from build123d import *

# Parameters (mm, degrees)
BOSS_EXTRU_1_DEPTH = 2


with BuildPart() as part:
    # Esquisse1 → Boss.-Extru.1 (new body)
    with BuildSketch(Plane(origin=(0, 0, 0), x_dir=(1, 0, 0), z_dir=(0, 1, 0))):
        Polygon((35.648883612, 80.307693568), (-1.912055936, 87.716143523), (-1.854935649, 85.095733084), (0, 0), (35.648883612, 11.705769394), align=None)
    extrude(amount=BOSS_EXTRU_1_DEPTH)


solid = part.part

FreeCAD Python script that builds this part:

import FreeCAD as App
import Part
import Sketcher
Q = App.Units.Quantity


def add_polygon(sketch, points):
    """Adds a closed chain of lines whose ends are joined by coincident constraints."""
    first, n = sketch.GeometryCount, len(points)
    for a, b in zip(points, points[1:] + points[:1]):
        sketch.addGeometry(Part.LineSegment(App.Vector(*a, 0), App.Vector(*b, 0)), False)
    for i in range(n):
        sketch.addConstraint(Sketcher.Constraint("Coincident", first + i, 2, first + (i + 1) % n, 1))

doc = App.newDocument("Part")
body = doc.addObject("PartDesign::Body", "Body")

sketch1 = body.newObject("Sketcher::SketchObject", "Sketch")
sketch1.AttachmentSupport = (doc.getObject("XZ_Plane"), [""])
sketch1.MapMode = "FlatFace"
add_polygon(sketch1, [(35.6, -80.3), (-1.9, -87.7), (-1.9, -85.1), (0, 0), (35.6, -11.7)])
sketch1.addConstraint(Sketcher.Constraint("Vertical", 4))
sketch1.addConstraint(Sketcher.Constraint("Coincident", 2, 2, -1, 1))
sketch1.addConstraint(Sketcher.Constraint("Parallel", 1, 2))
sketch1.addConstraint(Sketcher.Constraint("DistanceY", 4, 2, 4, 1, Q("68.601924 mm")))
sketch1.addConstraint(Sketcher.Constraint("DistanceY", 3, 2, -1, 1, Q("11.705769 mm")))
sketch1.addConstraint(Sketcher.Constraint("DistanceX", 0, 2, 1, 2, Q("0.05712 mm")))
sketch1.addConstraint(Sketcher.Constraint("DistanceY", 0, 2, 1, 2, Q("2.62041 mm")))
sketch1.addConstraint(Sketcher.Constraint("DistanceX", 1, 2, 3, 2, Q("37.503819 mm")))
sketch1.addConstraint(Sketcher.Constraint("DistanceY", 1, 2, 4, 2, Q("4.78804 mm")))
pad1 = body.newObject("PartDesign::Pad", "Pad")
pad1.Profile = sketch1
pad1.Length = 2
pad1.Reversed = True

doc.recompute()
